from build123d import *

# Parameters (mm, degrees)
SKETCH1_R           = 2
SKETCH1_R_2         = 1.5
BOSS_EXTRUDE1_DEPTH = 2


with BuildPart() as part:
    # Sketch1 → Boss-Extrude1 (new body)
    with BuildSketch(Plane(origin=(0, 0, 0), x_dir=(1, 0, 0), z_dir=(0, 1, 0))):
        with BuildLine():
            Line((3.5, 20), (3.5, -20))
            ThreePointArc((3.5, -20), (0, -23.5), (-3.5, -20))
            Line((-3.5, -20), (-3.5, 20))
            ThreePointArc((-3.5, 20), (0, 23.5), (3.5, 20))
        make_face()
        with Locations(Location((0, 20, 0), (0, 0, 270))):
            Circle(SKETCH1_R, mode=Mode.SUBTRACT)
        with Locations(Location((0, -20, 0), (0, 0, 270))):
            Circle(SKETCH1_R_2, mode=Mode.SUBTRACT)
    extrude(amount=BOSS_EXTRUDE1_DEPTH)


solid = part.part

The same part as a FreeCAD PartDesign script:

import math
import FreeCAD as App
import Part
import Sketcher

V = App.Vector

doc = App.newDocument("Part")
body = doc.addObject("PartDesign::Body", "Body")

# Sketch on XZ plane
sketch1 = doc.addObject("Sketcher::SketchObject", "Sketch")
body.addObject(sketch1)
sketch1.AttachmentSupport = (doc.XZ_Plane, [""])
sketch1.MapMode = "FlatFace"
sketch1.addGeometry([
    Part.LineSegment(V(3.5, 20, 0), V(3.5, -20, 0)),  # 0
    Part.ArcOfCircle(Part.Circle(V(0, -20, 0), V(0, 0, 1), 3.5), math.radians(180), math.radians(360)),  # 1
    Part.LineSegment(V(-3.5, -20, 0), V(-3.5, 20, 0)),  # 2
    Part.ArcOfCircle(Part.Circle(V(0, 20, 0), V(0, 0, 1), 3.5), math.radians(0), math.radians(180)),  # 3
    Part.Circle(V(0, 20, 0), V(0, 0, 1), 1.5),  # 4
    Part.Circle(V(0, -20, 0), V(0, 0, 1), 2),  # 5
], False)
sketch1.addConstraint([
    Sketcher.Constraint("Tangent", 0, 2, 1, 2),
    Sketcher.Constraint("Tangent", 1, 1, 2, 1),
    Sketcher.Constraint("Tangent", 2, 2, 3, 2),
    Sketcher.Constraint("Tangent", 3, 1, 0, 1),
    Sketcher.Constraint("Vertical", 0),
    Sketcher.Constraint("Vertical", 2),
    Sketcher.Constraint("Coincident", 4, 3, 3, 3),
    Sketcher.Constraint("Coincident", 5, 3, 1, 3),
    Sketcher.Constraint("Symmetric", 1, 3, 3, 3, -1, 1),
    Sketcher.Constraint("Diameter", 4, 3.0),
    Sketcher.Constraint("Diameter", 5, 4.0),
    Sketcher.Constraint("Radius", 1, 3.5),
    Sketcher.Constraint("DistanceY", 0, 2, 0, 1, 40.0),
])
pad1 = doc.addObject("PartDesign::Pad", "Pad")
body.addObject(pad1)
pad1.Profile = sketch1
pad1.Length = 2
pad1.Reversed = True

doc.recompute()
